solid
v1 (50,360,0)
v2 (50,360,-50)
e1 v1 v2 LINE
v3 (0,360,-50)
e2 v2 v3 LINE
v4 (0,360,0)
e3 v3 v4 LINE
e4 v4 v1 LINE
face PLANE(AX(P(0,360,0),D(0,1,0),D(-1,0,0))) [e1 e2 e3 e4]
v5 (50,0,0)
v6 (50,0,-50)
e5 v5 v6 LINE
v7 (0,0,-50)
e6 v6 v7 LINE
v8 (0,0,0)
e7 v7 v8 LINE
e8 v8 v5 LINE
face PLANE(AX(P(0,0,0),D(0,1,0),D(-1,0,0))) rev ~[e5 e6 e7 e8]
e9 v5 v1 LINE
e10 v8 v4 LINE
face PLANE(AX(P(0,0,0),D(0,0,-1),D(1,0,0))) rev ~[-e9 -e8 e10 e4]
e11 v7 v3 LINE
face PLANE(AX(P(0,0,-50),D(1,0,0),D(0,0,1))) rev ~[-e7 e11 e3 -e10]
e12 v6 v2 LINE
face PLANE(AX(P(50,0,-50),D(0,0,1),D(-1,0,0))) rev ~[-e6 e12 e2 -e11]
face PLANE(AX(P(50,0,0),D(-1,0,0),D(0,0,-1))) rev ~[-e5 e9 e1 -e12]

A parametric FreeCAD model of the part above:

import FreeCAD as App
import Part
import Sketcher
from FreeCAD import Vector

doc = App.newDocument("Part")
body = doc.addObject("PartDesign::Body", "Body")

# Sketch on XZ plane
sketch1 = body.newObject("Sketcher::SketchObject", "Sketch")
sketch1.AttachmentSupport = (doc.getObject("XZ_Plane"), [""])
sketch1.MapMode = "FlatFace"
sketch1.addGeometry([
    Part.LineSegment(Vector(0, -50, 0), Vector(0, 0, 0)),
    Part.LineSegment(Vector(0, 0, 0), Vector(50, 0, 0)),
    Part.LineSegment(Vector(50, 0, 0), Vector(50, -50, 0)),
    Part.LineSegment(Vector(50, -50, 0), Vector(0, -50, 0)),
], False)
sketch1.addConstraint([
    Sketcher.Constraint("Coincident", 0, 2, 1, 1),
    Sketcher.Constraint("Coincident", 1, 2, 2, 1),
    Sketcher.Constraint("Coincident", 2, 2, 3, 1),
    Sketcher.Constraint("Coincident", 3, 2, 0, 1),
    Sketcher.Constraint("Vertical", 0),
    Sketcher.Constraint("Horizontal", 1),
    Sketcher.Constraint("Vertical", 2),
    Sketcher.Constraint("Horizontal", 3),
    Sketcher.Constraint("Coincident", 0, 2, -1, 1),
    Sketcher.Constraint("Equal", 3, 0),
    Sketcher.Constraint("DistanceX", 1, 1, 1, 2, 50.0),
])
pad1 = body.newObject("PartDesign::Pad", "Pad")
pad1.Profile = sketch1
pad1.Length = 360
pad1.Reversed = True

doc.recompute()
